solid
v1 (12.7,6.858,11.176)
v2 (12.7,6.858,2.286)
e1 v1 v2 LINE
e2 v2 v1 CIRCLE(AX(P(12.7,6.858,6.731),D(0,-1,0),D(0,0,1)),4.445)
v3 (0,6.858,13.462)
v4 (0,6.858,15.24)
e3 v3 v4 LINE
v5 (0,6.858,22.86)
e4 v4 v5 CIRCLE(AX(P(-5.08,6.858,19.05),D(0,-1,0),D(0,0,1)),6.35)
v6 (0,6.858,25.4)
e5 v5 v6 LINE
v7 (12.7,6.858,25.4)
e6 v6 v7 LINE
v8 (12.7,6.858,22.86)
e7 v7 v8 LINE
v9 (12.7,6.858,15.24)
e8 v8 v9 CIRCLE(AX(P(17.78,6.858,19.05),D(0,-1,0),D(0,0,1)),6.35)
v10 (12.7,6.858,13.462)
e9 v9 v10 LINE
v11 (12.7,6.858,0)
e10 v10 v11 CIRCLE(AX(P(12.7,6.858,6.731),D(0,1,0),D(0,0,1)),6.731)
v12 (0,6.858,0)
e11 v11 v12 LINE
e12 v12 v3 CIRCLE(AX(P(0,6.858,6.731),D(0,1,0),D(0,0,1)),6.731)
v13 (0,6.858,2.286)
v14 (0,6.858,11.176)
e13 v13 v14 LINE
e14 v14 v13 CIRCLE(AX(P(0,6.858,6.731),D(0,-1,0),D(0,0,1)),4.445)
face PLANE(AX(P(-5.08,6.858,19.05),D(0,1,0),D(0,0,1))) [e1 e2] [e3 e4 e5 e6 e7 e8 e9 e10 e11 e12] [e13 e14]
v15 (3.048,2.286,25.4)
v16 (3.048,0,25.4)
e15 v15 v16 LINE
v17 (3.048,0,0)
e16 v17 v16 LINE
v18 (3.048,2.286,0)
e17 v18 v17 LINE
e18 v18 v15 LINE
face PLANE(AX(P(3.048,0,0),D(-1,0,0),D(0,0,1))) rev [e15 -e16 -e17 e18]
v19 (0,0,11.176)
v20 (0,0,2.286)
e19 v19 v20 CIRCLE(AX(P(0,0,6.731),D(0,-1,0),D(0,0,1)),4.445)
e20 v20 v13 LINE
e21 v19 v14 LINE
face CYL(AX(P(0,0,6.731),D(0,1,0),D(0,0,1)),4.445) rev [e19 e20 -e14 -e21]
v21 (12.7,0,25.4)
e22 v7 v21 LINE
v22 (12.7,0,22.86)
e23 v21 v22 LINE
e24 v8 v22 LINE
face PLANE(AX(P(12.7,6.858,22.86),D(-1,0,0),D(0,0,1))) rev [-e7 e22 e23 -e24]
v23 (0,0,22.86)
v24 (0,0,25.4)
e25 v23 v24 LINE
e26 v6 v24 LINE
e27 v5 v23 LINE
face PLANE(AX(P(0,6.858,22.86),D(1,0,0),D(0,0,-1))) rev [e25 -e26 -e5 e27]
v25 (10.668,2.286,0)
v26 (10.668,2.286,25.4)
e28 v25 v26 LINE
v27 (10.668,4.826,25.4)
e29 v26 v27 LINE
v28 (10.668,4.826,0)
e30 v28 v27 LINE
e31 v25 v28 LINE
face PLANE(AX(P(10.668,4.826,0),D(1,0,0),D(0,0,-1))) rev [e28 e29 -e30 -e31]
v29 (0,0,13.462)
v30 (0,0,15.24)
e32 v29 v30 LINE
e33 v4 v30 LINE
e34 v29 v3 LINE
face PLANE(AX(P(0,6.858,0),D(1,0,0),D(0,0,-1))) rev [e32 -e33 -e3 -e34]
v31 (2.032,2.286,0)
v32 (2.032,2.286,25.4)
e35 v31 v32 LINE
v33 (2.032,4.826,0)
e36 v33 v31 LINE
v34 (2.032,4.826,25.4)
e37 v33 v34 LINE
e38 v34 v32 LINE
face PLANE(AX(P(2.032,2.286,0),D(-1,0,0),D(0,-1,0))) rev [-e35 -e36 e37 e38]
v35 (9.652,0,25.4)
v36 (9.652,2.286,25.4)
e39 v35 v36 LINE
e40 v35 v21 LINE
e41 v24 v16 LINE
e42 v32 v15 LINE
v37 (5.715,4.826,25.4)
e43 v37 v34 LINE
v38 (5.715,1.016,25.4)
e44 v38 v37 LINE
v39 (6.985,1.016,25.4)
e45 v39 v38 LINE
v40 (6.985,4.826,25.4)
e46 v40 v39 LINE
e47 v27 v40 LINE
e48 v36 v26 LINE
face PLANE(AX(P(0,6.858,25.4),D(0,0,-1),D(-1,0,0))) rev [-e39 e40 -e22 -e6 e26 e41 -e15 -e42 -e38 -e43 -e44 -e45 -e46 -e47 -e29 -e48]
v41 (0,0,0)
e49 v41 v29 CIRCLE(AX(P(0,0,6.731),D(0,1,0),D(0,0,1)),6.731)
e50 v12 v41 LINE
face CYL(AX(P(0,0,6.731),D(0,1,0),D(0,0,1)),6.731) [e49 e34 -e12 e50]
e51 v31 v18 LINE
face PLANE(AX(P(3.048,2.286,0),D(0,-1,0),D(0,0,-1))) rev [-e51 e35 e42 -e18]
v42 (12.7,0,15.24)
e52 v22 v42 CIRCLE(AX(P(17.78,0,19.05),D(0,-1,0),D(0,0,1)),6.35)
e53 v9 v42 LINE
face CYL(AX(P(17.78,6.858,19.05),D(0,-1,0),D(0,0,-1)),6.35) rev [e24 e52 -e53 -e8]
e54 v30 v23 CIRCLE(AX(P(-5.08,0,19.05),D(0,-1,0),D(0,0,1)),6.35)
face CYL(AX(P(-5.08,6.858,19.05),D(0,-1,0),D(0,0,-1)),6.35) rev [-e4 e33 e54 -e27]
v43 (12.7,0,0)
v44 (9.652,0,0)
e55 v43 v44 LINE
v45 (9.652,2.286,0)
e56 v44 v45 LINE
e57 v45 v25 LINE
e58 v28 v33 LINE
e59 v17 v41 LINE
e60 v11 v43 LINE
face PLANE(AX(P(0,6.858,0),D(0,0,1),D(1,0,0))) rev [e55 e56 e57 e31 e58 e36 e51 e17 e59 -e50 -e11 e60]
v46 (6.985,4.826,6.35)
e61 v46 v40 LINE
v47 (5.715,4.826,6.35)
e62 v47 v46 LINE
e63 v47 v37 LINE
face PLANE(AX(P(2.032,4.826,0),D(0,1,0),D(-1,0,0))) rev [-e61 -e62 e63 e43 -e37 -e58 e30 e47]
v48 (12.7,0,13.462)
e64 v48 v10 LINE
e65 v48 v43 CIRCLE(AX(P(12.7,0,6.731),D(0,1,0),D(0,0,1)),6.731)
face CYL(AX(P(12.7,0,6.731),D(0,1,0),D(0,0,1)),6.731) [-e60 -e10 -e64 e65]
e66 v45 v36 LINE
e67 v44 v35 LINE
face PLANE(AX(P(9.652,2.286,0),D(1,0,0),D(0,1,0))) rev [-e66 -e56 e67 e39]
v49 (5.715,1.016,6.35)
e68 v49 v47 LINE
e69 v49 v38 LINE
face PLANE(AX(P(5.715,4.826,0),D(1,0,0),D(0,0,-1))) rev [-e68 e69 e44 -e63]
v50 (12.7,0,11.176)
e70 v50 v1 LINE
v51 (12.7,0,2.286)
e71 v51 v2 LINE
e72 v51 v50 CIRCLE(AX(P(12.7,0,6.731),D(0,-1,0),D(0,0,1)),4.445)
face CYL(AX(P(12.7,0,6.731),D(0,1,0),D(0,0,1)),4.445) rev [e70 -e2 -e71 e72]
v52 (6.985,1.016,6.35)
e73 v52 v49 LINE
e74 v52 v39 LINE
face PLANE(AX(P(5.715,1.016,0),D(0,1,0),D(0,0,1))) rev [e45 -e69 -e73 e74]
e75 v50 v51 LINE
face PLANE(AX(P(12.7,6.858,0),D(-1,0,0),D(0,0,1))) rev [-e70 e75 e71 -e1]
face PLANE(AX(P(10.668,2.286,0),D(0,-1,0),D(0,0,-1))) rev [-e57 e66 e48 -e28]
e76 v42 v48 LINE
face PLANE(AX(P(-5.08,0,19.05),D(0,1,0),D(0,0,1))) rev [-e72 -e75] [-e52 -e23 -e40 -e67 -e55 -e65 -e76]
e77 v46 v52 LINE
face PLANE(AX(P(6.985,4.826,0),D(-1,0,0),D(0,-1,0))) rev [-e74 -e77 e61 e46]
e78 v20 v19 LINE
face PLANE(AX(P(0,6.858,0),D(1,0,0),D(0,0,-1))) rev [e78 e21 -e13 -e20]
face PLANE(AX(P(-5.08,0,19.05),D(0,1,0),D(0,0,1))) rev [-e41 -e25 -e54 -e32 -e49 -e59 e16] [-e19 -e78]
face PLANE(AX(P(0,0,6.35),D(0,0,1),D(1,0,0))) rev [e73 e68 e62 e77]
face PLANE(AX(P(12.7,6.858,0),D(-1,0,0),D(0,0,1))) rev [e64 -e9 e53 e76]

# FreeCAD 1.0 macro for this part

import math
import FreeCAD as App
import Part
import Sketcher
from FreeCAD import Vector
Q = App.Units.Quantity

doc = App.newDocument("Part")
body = doc.addObject("PartDesign::Body", "Body")

sketch1 = doc.addObject("Sketcher::SketchObject", "Sketch")
body.addObject(sketch1)
sketch1.AttachmentSupport = (doc.XZ_Plane, [""])
sketch1.MapMode = "FlatFace"
sketch1.addGeometry([
    Part.LineSegment(Vector(0, 22.9, 0), Vector(0, 25.4, 0)),
    Part.LineSegment(Vector(0, 25.4, 0), Vector(12.7, 25.4, 0)),
    Part.LineSegment(Vector(12.7, 25.4, 0), Vector(12.7, 22.9, 0)),
    Part.ArcOfCircle(Part.Circle(Vector(17.8, 19.1, 0), Vector(0, 0, 1), 6.3), math.radians(143), math.radians(217)),
    Part.LineSegment(Vector(12.7, 15.2, 0), Vector(12.7, 0, 0)),
    Part.LineSegment(Vector(12.7, 0, 0), Vector(0, 0, 0)),
    Part.LineSegment(Vector(0, 0, 0), Vector(0, 15.2, 0)),
    Part.ArcOfCircle(Part.Circle(Vector(-5.1, 19.1, 0), Vector(0, 0, 1), 6.3), math.radians(-37), math.radians(37)),
], False)
sketch1.addConstraint([
    Sketcher.Constraint("Coincident", 0, 2, 1, 1),
    Sketcher.Constraint("Coincident", 1, 2, 2, 1),
    Sketcher.Constraint("Coincident", 2, 2, 3, 1),
    Sketcher.Constraint("Coincident", 3, 2, 4, 1),
    Sketcher.Constraint("Coincident", 4, 2, 5, 1),
    Sketcher.Constraint("Coincident", 5, 2, 6, 1),
    Sketcher.Constraint("Coincident", 6, 2, 7, 1),
    Sketcher.Constraint("Coincident", 7, 2, 0, 1),
    Sketcher.Constraint("Vertical", 0),
    Sketcher.Constraint("Horizontal", 1),
    Sketcher.Constraint("Vertical", 2),
    Sketcher.Constraint("Vertical", 4),
    Sketcher.Constraint("Horizontal", 5),
    Sketcher.Constraint("Vertical", 6),
    Sketcher.Constraint("Coincident", 5, 2, -1, 1),
    Sketcher.Constraint("Equal", 3, 7),
    Sketcher.Constraint("PointOnObject", 0, 2, -2),
    Sketcher.Constraint("Horizontal", 3, 3, 7, 3),
    Sketcher.Constraint("Horizontal", 3, 2, 6, 2),
    Sketcher.Constraint("Horizontal", 2, 2, 7, 2),
    Sketcher.Constraint("Radius", 3, Q("0.25 in")),
    Sketcher.Constraint("DistanceX", 1, 1, 1, 2, Q("0.5 in")),
    Sketcher.Constraint("DistanceY", 0, 1, 0, 2, Q("0.1 in")),
    Sketcher.Constraint("DistanceY", 4, 2, 4, 1, Q("0.6 in")),
    Sketcher.Constraint("DistanceY", -1, 1, 0, 2, Q("1 in")),
])
pad1 = doc.addObject("PartDesign::Pad", "Pad")
body.addObject(pad1)
pad1.Profile = sketch1
pad1.Length = Q("0.27 in")
pad1.Reversed = True

sketch2 = doc.addObject("Sketcher::SketchObject", "Sketch001")
body.addObject(sketch2)
sketch2.AttachmentSupport = (doc.XY_Plane, [""])
sketch2.MapMode = "FlatFace"
sketch2.AttachmentOffset = App.Placement(Vector(0, 0, 1 * 25.4), App.Rotation())
sketch2.addGeometry([
    Part.LineSegment(Vector(3, 2.3, 0), Vector(3, 0, 0)),
    Part.LineSegment(Vector(3, 0, 0), Vector(9.7, 0, 0)),
    Part.LineSegment(Vector(9.7, 0, 0), Vector(9.7, 2.3, 0)),
    Part.LineSegment(Vector(9.7, 2.3, 0), Vector(10.7, 2.3, 0)),
    Part.LineSegment(Vector(10.7, 2.3, 0), Vector(10.7, 4.8, 0)),
    Part.LineSegment(Vector(10.7, 4.8, 0), Vector(7, 4.8, 0)),
    Part.LineSegment(Vector(7, 4.8, 0), Vector(7, 1, 0)),
    Part.LineSegment(Vector(7, 1, 0), Vector(5.7, 1, 0)),
    Part.LineSegment(Vector(5.7, 1, 0), Vector(5.7, 4.8, 0)),
    Part.LineSegment(Vector(5.7, 4.8, 0), Vector(2, 4.8, 0)),
    Part.LineSegment(Vector(2, 4.8, 0), Vector(2, 2.3, 0)),
    Part.LineSegment(Vector(2, 2.3, 0), Vector(3, 2.3, 0)),
], False)
sketch2.addConstraint([
    Sketcher.Constraint("Coincident", 0, 2, 1, 1),
    Sketcher.Constraint("Coincident", 1, 2, 2, 1),
    Sketcher.Constraint("Coincident", 2, 2, 3, 1),
    Sketcher.Constraint("Coincident", 3, 2, 4, 1),
    Sketcher.Constraint("Coincident", 4, 2, 5, 1),
    Sketcher.Constraint("Coincident", 5, 2, 6, 1),
    Sketcher.Constraint("Coincident", 6, 2, 7, 1),
    Sketcher.Constraint("Coincident", 7, 2, 8, 1),
    Sketcher.Constraint("Coincident", 8, 2, 9, 1),
    Sketcher.Constraint("Coincident", 9, 2, 10, 1),
    Sketcher.Constraint("Coincident", 10, 2, 11, 1),
    Sketcher.Constraint("Coincident", 11, 2, 0, 1),
    Sketcher.Constraint("Vertical", 0),
    Sketcher.Constraint("Horizontal", 1),
    Sketcher.Constraint("Vertical", 2),
    Sketcher.Constraint("Horizontal", 3),
    Sketcher.Constraint("Vertical", 4),
    Sketcher.Constraint("Horizontal", 5),
    Sketcher.Constraint("Vertical", 6),
    Sketcher.Constraint("Horizontal", 7),
    Sketcher.Constraint("Vertical", 8),
    Sketcher.Constraint("Horizontal", 9),
    Sketcher.Constraint("Vertical", 10),
    Sketcher.Constraint("Horizontal", 11),
    Sketcher.Constraint("PointOnObject", 0, 2, -1),
    Sketcher.Constraint("Horizontal", 5, 2, 8, 2),
    Sketcher.Constraint("Horizontal", 3, 2, 10, 2),
    Sketcher.Constraint("Equal", 5, 9),
    Sketcher.Constraint("Equal", 3, 11),
    Sketcher.Constraint("DistanceY", 4, 1, 4, 2, Q("0.1 in")),
    Sketcher.Constraint("DistanceX", 1, 1, 1, 2, Q("0.26 in")),
    Sketcher.Constraint("DistanceX", 3, 1, 3, 2, Q("0.04 in")),
    Sketcher.Constraint("DistanceX", 7, 2, 7, 1, Q("0.05 in")),
    Sketcher.Constraint("DistanceY", 0, 2, 0, 1, Q("0.09 in")),
    Sketcher.Constraint("DistanceY", 6, 2, 6, 1, Q("0.15 in")),
    Sketcher.Constraint("DistanceX", -1, 1, 0, 2, Q("0.12 in")),
])
pocket1 = doc.addObject("PartDesign::Pocket", "Pocket")
body.addObject(pocket1)
pocket1.Profile = sketch2
pocket1.Type = "ThroughAll"

sketch3 = doc.addObject("Sketcher::SketchObject", "Sketch002")
body.addObject(sketch3)
sketch3.AttachmentSupport = (doc.XZ_Plane, [""])
sketch3.MapMode = "FlatFace"
sketch3.AttachmentOffset = App.Placement(Vector(0, 0, -0.27 * 25.4), App.Rotation())
sketch3.addGeometry([
    Part.LineSegment(Vector(0, 2.3, 0), Vector(0, 0, 0)),
    Part.ArcOfCircle(Part.Circle(Vector(0, 6.7, 0), Vector(0, 0, 1), 6.7), math.radians(90), math.radians(270)),
    Part.LineSegment(Vector(0, 13.5, 0), Vector(0, 11.2, 0)),
    Part.ArcOfCircle(Part.Circle(Vector(0, 6.7, 0), Vector(0, 0, 1), 4.4), math.radians(90), math.radians(270)),
    Part.LineSegment(Vector(12.7, 11.2, 0), Vector(12.7, 13.5, 0)),
    Part.ArcOfCircle(Part.Circle(Vector(12.7, 6.7, 0), Vector(0, 0, 1), 6.7), math.radians(-90), math.radians(90)),
    Part.LineSegment(Vector(12.7, 0, 0), Vector(12.7, 2.3, 0)),
    Part.ArcOfCircle(Part.Circle(Vector(12.7, 6.7, 0), Vector(0, 0, 1), 4.4), math.radians(-90), math.radians(90)),
], False)
sketch3.addConstraint([
    Sketcher.Constraint("Coincident", 0, 2, 1, 2),
    Sketcher.Constraint("Coincident", 1, 1, 2, 1),
    Sketcher.Constraint("Coincident", 2, 2, 3, 1),
    Sketcher.Constraint("Coincident", 3, 2, 0, 1),
    Sketcher.Constraint("Coincident", 4, 2, 5, 2),
    Sketcher.Constraint("Coincident", 5, 1, 6, 1),
    Sketcher.Constraint("Coincident", 6, 2, 7, 1),
    Sketcher.Constraint("Coincident", 7, 2, 4, 1),
    Sketcher.Constraint("Vertical", 0),
    Sketcher.Constraint("Vertical", 2),
    Sketcher.Constraint("Vertical", 4),
    Sketcher.Constraint("Vertical", 6),
    Sketcher.Constraint("Coincident", 0, 2, -1, 1),
    Sketcher.Constraint("Coincident", 3, 3, 1, 3),
    Sketcher.Constraint("Coincident", 7, 3, 5, 3),
    Sketcher.Constraint("Equal", 1, 5),
    Sketcher.Constraint("Equal", 3, 7),
    Sketcher.Constraint("PointOnObject", 1, 3, -2),
    Sketcher.Constraint("PointOnObject", 1, 1, -2),
    Sketcher.Constraint("PointOnObject", 5, 1, -1),
    Sketcher.Constraint("Vertical", 7, 3, 4, 2),
    Sketcher.Constraint("Vertical", 4, 2, 5, 1),
    Sketcher.Constraint("Radius", 1, Q("0.265 in")),
    Sketcher.Constraint("Radius", 3, Q("0.175 in")),
    Sketcher.Constraint("DistanceX", -1, 1, 5, 3, Q("0.5 in")),
])
pad2 = doc.addObject("PartDesign::Pad", "Pad001")
body.addObject(pad2)
pad2.Profile = sketch3
pad2.Length = Q("0.27 in")

sketch4 = doc.addObject("Sketcher::SketchObject", "Sketch003")
body.addObject(sketch4)
sketch4.AttachmentSupport = (doc.XY_Plane, [""])
sketch4.MapMode = "FlatFace"
sketch4.addGeometry([
    Part.LineSegment(Vector(7, 4.8, 0), Vector(7, 1, 0)),
    Part.LineSegment(Vector(7, 1, 0), Vector(5.7, 1, 0)),
    Part.LineSegment(Vector(5.7, 1, 0), Vector(5.7, 4.8, 0)),
    Part.LineSegment(Vector(5.7, 4.8, 0), Vector(7, 4.8, 0)),
], False)
sketch4.addConstraint([
    Sketcher.Constraint("Coincident", 0, 2, 1, 1),
    Sketcher.Constraint("Coincident", 1, 2, 2, 1),
    Sketcher.Constraint("Coincident", 2, 2, 3, 1),
    Sketcher.Constraint("Coincident", 3, 2, 0, 1),
    Sketcher.Constraint("Vertical", 0),
    Sketcher.Constraint("Horizontal", 1),
    Sketcher.Constraint("Vertical", 2),
    Sketcher.Constraint("Horizontal", 3),
    Sketcher.Constraint("DistanceX", 1, 2, 1, 1, Q("0.05 in")),
    Sketcher.Constraint("DistanceY", 0, 2, 0, 1, Q("0.15 in")),
    Sketcher.Constraint("DistanceY", -1, 1, 0, 2, Q("0.04 in")),
    Sketcher.Constraint("DistanceX", -1, 1, 0, 2, Q("0.275 in")),
])
pocket2 = doc.addObject("PartDesign::Pocket", "Pocket001")
body.addObject(pocket2)
pocket2.Profile = sketch4
pocket2.Length = Q("0.25 in")
pocket2.Reversed = True

doc.recompute()
